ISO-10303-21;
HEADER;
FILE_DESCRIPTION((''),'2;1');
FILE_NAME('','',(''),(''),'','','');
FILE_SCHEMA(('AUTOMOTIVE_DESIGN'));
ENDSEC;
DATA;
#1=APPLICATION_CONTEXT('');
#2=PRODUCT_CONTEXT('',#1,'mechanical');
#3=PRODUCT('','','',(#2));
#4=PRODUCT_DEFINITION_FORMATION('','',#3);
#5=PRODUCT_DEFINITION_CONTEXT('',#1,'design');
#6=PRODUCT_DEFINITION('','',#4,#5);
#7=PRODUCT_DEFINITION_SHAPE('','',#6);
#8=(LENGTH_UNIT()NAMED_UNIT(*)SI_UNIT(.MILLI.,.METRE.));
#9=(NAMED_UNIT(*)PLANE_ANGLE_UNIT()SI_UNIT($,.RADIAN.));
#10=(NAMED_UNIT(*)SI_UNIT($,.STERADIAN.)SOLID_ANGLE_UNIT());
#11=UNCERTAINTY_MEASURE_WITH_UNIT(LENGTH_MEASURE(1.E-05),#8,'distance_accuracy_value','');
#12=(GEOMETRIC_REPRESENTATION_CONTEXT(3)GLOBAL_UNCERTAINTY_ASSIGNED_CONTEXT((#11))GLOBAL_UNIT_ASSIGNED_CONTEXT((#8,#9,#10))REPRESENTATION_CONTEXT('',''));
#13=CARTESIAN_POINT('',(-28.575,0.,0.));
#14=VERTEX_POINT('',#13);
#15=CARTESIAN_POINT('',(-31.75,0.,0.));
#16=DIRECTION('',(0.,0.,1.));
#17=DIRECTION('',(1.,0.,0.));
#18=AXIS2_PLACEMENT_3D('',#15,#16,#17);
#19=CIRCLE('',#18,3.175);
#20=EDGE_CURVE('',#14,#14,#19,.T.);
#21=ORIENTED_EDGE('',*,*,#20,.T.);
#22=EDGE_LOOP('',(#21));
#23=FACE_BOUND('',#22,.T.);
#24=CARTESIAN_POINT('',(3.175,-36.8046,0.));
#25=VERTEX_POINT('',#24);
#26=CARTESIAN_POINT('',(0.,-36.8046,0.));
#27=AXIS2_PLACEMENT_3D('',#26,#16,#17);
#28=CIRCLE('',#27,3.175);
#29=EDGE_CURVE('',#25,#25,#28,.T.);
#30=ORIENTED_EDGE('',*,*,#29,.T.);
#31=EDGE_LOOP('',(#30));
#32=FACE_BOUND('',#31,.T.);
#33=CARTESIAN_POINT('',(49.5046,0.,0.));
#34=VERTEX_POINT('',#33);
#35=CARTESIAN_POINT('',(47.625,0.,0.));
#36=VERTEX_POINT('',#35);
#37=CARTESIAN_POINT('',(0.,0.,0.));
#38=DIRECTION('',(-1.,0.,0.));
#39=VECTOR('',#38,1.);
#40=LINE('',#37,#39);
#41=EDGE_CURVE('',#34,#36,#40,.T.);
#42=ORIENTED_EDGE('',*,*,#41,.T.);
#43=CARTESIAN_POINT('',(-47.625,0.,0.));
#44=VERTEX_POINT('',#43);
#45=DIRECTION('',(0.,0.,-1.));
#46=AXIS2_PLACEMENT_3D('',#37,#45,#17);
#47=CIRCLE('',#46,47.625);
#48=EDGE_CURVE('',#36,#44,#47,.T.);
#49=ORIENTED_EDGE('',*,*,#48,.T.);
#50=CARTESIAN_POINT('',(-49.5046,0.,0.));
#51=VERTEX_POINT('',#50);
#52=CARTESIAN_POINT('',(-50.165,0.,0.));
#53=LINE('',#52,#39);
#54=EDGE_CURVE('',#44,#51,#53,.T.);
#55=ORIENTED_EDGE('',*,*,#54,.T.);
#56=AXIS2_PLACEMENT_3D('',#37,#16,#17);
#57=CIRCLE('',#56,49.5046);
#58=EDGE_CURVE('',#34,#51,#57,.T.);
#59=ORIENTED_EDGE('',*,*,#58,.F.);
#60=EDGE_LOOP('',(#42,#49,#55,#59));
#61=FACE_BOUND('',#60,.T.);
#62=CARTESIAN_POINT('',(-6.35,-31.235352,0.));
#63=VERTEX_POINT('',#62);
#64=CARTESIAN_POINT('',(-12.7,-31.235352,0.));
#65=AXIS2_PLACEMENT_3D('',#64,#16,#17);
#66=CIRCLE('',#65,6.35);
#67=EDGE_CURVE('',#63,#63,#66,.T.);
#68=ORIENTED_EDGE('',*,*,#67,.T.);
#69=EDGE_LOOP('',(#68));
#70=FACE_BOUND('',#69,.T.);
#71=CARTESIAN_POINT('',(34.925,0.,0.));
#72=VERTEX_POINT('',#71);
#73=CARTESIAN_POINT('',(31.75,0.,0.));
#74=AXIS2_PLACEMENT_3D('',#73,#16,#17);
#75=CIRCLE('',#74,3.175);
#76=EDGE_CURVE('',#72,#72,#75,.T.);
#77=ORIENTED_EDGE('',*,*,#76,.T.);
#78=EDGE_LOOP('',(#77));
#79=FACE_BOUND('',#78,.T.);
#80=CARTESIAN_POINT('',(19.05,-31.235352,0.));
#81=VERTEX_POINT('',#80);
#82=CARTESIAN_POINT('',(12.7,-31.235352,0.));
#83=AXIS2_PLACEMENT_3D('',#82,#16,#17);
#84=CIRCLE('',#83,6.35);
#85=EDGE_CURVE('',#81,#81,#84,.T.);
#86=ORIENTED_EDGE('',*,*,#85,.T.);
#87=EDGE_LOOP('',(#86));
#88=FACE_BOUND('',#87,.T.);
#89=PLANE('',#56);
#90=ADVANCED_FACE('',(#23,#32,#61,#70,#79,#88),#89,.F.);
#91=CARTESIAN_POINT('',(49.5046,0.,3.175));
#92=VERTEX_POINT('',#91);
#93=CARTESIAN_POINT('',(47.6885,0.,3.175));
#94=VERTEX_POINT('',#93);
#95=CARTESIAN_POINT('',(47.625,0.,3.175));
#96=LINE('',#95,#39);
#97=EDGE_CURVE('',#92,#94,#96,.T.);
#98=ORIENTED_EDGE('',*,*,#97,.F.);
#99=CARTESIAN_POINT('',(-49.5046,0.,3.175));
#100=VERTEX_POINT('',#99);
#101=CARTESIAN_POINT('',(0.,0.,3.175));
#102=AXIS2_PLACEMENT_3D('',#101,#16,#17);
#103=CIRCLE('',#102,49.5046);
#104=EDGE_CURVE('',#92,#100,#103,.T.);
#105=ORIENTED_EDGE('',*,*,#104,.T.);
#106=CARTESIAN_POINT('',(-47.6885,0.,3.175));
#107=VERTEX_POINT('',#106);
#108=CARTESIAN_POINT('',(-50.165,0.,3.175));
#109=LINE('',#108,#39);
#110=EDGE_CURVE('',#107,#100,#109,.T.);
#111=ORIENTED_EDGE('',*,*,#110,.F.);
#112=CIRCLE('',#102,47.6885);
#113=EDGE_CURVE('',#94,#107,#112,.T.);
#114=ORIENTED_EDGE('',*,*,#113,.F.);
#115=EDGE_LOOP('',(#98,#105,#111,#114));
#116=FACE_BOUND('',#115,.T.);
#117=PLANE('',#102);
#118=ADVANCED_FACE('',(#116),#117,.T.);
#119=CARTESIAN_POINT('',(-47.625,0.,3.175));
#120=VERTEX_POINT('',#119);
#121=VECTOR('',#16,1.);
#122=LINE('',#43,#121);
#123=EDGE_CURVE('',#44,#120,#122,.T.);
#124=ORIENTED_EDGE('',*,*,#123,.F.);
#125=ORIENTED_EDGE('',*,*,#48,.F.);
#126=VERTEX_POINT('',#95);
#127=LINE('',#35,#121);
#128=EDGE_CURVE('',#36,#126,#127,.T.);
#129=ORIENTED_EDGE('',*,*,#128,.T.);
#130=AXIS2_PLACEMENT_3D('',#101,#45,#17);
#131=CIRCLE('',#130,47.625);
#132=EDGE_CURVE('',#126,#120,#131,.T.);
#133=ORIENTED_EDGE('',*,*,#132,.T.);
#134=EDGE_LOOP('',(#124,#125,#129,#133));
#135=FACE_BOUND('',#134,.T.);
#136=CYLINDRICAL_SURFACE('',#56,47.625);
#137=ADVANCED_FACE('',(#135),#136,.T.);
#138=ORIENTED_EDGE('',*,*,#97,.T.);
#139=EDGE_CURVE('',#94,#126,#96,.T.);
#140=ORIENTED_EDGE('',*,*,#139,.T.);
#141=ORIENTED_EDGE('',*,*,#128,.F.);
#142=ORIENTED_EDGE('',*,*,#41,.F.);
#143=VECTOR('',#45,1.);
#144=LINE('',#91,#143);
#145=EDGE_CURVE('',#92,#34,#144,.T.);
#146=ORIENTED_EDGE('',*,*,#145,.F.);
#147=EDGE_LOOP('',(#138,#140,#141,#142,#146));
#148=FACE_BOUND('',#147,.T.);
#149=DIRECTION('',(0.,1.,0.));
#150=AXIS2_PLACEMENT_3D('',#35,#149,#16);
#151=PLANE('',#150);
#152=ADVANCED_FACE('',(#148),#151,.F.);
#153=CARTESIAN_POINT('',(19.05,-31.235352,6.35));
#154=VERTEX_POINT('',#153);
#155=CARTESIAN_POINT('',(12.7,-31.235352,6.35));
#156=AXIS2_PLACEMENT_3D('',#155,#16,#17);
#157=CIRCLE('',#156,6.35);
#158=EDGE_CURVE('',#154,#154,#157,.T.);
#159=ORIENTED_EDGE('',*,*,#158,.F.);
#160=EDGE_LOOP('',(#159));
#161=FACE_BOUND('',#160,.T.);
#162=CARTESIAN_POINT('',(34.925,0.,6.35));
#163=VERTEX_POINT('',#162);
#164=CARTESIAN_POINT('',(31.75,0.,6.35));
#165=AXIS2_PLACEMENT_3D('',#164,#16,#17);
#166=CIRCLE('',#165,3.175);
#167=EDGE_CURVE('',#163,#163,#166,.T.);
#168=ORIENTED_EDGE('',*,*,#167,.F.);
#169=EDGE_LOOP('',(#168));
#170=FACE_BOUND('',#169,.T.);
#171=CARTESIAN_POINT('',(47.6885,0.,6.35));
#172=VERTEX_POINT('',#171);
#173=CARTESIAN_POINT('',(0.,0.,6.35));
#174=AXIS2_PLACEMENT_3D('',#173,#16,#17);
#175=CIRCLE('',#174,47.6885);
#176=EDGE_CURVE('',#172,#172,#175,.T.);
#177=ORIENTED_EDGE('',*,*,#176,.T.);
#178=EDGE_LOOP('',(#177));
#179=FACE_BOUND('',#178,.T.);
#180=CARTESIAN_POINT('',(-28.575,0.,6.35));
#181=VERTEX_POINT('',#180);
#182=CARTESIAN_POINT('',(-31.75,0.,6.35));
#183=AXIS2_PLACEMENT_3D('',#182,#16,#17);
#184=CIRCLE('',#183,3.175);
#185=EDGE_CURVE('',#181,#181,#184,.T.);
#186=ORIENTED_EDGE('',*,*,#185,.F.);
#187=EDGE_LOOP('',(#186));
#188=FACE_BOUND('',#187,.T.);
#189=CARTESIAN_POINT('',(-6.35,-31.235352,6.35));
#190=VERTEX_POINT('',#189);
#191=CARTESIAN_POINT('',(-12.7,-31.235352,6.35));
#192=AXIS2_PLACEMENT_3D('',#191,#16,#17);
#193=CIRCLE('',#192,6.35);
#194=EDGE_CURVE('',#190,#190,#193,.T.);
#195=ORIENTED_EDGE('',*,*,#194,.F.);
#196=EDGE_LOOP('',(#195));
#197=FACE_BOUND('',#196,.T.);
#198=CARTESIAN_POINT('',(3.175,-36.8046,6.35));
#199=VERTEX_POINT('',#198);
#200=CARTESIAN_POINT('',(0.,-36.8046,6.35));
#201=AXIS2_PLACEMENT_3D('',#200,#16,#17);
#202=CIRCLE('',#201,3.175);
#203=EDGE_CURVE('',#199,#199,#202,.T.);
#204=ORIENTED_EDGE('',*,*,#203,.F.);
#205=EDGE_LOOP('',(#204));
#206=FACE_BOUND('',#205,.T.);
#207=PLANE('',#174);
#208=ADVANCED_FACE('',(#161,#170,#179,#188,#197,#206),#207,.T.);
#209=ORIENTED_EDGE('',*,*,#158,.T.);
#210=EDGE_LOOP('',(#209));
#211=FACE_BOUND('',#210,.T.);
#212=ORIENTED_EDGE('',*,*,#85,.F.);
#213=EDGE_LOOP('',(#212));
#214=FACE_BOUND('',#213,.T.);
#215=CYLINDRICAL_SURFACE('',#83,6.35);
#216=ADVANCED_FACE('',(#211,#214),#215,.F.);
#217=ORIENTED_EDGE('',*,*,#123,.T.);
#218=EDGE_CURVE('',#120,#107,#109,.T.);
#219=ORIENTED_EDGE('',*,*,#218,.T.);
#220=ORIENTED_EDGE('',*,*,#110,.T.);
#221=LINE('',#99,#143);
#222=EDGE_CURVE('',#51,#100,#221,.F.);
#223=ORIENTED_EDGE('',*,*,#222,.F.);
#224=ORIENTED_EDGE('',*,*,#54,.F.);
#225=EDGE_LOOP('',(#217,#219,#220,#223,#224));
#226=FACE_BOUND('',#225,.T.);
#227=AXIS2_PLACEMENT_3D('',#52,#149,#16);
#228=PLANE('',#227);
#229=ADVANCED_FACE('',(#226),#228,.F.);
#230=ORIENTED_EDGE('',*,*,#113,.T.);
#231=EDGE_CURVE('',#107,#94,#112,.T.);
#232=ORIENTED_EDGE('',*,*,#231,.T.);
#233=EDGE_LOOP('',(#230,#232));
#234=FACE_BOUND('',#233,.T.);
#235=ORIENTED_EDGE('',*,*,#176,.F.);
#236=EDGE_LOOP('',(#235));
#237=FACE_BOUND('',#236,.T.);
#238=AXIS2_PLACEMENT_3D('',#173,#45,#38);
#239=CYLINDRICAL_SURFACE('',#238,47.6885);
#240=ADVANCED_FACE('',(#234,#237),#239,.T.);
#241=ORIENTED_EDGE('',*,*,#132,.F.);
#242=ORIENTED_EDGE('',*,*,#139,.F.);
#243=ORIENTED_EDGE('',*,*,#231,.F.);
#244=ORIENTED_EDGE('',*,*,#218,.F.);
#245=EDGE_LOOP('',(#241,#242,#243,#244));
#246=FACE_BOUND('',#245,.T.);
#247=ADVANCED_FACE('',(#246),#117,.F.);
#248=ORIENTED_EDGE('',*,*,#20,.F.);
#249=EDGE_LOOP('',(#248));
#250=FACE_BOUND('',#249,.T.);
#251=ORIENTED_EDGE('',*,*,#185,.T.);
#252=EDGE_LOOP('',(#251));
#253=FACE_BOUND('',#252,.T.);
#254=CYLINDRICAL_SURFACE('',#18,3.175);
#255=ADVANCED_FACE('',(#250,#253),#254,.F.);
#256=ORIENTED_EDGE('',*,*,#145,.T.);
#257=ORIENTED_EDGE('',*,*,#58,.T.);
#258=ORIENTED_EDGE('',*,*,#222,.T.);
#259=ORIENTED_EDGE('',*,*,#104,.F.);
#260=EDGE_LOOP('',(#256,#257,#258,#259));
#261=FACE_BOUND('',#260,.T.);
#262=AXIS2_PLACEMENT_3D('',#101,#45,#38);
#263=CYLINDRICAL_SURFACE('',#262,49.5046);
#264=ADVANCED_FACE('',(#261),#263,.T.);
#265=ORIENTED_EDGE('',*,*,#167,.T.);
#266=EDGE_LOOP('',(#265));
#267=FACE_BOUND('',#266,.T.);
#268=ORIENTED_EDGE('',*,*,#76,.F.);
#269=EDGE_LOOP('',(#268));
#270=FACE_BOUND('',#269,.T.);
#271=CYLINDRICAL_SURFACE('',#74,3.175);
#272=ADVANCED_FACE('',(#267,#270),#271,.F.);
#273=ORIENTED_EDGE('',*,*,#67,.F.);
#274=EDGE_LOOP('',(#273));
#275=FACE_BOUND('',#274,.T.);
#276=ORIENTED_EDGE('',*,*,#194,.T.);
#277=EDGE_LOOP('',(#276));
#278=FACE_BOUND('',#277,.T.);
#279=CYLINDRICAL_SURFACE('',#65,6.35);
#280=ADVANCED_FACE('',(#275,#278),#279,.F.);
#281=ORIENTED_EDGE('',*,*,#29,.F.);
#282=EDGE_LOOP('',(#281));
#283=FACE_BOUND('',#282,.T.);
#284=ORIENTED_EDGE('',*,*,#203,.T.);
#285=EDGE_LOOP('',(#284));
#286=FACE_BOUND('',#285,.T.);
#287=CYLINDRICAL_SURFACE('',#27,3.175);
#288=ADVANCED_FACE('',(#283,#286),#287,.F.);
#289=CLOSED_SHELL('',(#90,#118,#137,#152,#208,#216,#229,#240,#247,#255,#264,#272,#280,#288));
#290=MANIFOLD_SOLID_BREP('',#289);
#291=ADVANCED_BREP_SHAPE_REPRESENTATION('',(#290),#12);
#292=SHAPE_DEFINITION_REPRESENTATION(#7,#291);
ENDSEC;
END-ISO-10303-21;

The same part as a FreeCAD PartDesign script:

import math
import FreeCAD as App
import Part
import Sketcher
from FreeCAD import Vector
Q = App.Units.Quantity

doc = App.newDocument("Part")
body = doc.addObject("PartDesign::Body", "Body")

# Sketch on XY plane
sketch1 = doc.addObject("Sketcher::SketchObject", "Sketch")
body.addObject(sketch1)
sketch1.AttachmentSupport = (doc.XY_Plane, [""])
sketch1.MapMode = "FlatFace"
sketch1.addGeometry(Part.Circle(Vector(0, 0, 0), Vector(0, 0, 1), 50), False)
sketch1.addConstraint([
    Sketcher.Constraint("Coincident", 0, 3, -1, 1),
    Sketcher.Constraint("Diameter", 0, Q("3.898 in")),
])
pad1 = doc.addObject("PartDesign::Pad", "Pad")
body.addObject(pad1)
pad1.Profile = sketch1
pad1.Length = Q("0.125 in")

# Sketch on XY plane
sketch2 = doc.addObject("Sketcher::SketchObject", "Sketch001")
body.addObject(sketch2)
sketch2.AttachmentSupport = (doc.XY_Plane, [""])
sketch2.MapMode = "FlatFace"
sketch2.AttachmentOffset = App.Placement(Vector(0, 0, 0.125 * 25.4), App.Rotation())
sketch2.addGeometry(Part.Circle(Vector(0, 0, 0), Vector(0, 0, 1), 48), False)
sketch2.addConstraint([
    Sketcher.Constraint("Coincident", 0, 3, -1, 1),
    Sketcher.Constraint("Diameter", 0, Q("3.755 in")),
])
pad2 = doc.addObject("PartDesign::Pad", "Pad001")
body.addObject(pad2)
pad2.Profile = sketch2
pad2.Length = Q("0.125 in")

# Sketch on XY plane
sketch3 = doc.addObject("Sketcher::SketchObject", "Sketch002")
body.addObject(sketch3)
sketch3.AttachmentSupport = (doc.XY_Plane, [""])
sketch3.MapMode = "FlatFace"
sketch3.AttachmentOffset = App.Placement(Vector(0, 0, 0.25 * 25.4), App.Rotation())
sketch3.addGeometry([
    Part.Circle(Vector(-31.8, 0, 0), Vector(0, 0, 1), 3.2),  # 0
    Part.Circle(Vector(31.8, 0, 0), Vector(0, 0, 1), 3.2),  # 1
    Part.Circle(Vector(-12.7, -31.2, 0), Vector(0, 0, 1), 6.3),  # 2
    Part.Circle(Vector(12.7, -31.2, 0), Vector(0, 0, 1), 6.3),  # 3
    Part.Circle(Vector(0, -36.8, 0), Vector(0, 0, 1), 3.2),  # 4
], False)
sketch3.addConstraint([
    Sketcher.Constraint("Equal", 0, 1),
    Sketcher.Constraint("Equal", 2, 3),
    Sketcher.Constraint("Equal", 1, 4),
    Sketcher.Constraint("Symmetric", 0, 3, 1, 3, -1, 1),
    Sketcher.Constraint("Symmetric", 2, 3, 3, 3, -2),
    Sketcher.Constraint("PointOnObject", 0, 3, -1),
    Sketcher.Constraint("PointOnObject", 4, 3, -2),
    Sketcher.Constraint("Diameter", 2, Q("0.5 in")),
    Sketcher.Constraint("Diameter", 0, Q("0.25 in")),
    Sketcher.Constraint("DistanceX", 2, 3, 3, 3, Q("1 in")),
    Sketcher.Constraint("DistanceX", 0, 3, 1, 3, Q("2.5 in")),
    Sketcher.Constraint("DistanceY", 4, 3, -1, 1, Q("1.449 in")),
    Sketcher.Constraint("DistanceY", 2, 3, -1, 1, 31.235352),
])
pocket1 = doc.addObject("PartDesign::Pocket", "Pocket")
body.addObject(pocket1)
pocket1.Profile = sketch3
pocket1.Type = "ThroughAll"

# Sketch on XY plane
sketch4 = doc.addObject("Sketcher::SketchObject", "Sketch003")
body.addObject(sketch4)
sketch4.AttachmentSupport = (doc.XY_Plane, [""])
sketch4.MapMode = "FlatFace"
sketch4.AttachmentOffset = App.Placement(Vector(0, 0, 0.125 * 25.4), App.Rotation())
sketch4.addGeometry([
    Part.LineSegment(Vector(-47.6, 0, 0), Vector(-50.2, 0, 0)),
    Part.ArcOfCircle(Part.Circle(Vector(0, 0, 0), Vector(0, 0, 1), 50.2), math.radians(180), math.radians(360)),
    Part.LineSegment(Vector(50.2, 0, 0), Vector(47.6, 0, 0)),
    Part.ArcOfCircle(Part.Circle(Vector(0, 0, 0), Vector(0, 0, 1), 47.6), math.radians(180), math.radians(360)),
], False)
sketch4.addConstraint([
    Sketcher.Constraint("Coincident", 0, 2, 1, 1),
    Sketcher.Constraint("Coincident", 1, 2, 2, 1),
    Sketcher.Constraint("Coincident", 2, 2, 3, 2),
    Sketcher.Constraint("Coincident", 3, 1, 0, 1),
    Sketcher.Constraint("Horizontal", 0),
    Sketcher.Constraint("Horizontal", 2),
    Sketcher.Constraint("Coincident", 1, 3, -1, 1),
    Sketcher.Constraint("Coincident", 3, 3, -1, 1),
    Sketcher.Constraint("PointOnObject", 0, 2, -1),
    Sketcher.Constraint("PointOnObject", 1, 2, -1),
    Sketcher.Constraint("DistanceX", 0, 2, 0, 1, Q("0.1 in")),
    Sketcher.Constraint("Radius", 1, Q("1.975 in")),
])
pocket2 = doc.addObject("PartDesign::Pocket", "Pocket001")
body.addObject(pocket2)
pocket2.Profile = sketch4
pocket2.Type = "ThroughAll"

doc.recompute()
